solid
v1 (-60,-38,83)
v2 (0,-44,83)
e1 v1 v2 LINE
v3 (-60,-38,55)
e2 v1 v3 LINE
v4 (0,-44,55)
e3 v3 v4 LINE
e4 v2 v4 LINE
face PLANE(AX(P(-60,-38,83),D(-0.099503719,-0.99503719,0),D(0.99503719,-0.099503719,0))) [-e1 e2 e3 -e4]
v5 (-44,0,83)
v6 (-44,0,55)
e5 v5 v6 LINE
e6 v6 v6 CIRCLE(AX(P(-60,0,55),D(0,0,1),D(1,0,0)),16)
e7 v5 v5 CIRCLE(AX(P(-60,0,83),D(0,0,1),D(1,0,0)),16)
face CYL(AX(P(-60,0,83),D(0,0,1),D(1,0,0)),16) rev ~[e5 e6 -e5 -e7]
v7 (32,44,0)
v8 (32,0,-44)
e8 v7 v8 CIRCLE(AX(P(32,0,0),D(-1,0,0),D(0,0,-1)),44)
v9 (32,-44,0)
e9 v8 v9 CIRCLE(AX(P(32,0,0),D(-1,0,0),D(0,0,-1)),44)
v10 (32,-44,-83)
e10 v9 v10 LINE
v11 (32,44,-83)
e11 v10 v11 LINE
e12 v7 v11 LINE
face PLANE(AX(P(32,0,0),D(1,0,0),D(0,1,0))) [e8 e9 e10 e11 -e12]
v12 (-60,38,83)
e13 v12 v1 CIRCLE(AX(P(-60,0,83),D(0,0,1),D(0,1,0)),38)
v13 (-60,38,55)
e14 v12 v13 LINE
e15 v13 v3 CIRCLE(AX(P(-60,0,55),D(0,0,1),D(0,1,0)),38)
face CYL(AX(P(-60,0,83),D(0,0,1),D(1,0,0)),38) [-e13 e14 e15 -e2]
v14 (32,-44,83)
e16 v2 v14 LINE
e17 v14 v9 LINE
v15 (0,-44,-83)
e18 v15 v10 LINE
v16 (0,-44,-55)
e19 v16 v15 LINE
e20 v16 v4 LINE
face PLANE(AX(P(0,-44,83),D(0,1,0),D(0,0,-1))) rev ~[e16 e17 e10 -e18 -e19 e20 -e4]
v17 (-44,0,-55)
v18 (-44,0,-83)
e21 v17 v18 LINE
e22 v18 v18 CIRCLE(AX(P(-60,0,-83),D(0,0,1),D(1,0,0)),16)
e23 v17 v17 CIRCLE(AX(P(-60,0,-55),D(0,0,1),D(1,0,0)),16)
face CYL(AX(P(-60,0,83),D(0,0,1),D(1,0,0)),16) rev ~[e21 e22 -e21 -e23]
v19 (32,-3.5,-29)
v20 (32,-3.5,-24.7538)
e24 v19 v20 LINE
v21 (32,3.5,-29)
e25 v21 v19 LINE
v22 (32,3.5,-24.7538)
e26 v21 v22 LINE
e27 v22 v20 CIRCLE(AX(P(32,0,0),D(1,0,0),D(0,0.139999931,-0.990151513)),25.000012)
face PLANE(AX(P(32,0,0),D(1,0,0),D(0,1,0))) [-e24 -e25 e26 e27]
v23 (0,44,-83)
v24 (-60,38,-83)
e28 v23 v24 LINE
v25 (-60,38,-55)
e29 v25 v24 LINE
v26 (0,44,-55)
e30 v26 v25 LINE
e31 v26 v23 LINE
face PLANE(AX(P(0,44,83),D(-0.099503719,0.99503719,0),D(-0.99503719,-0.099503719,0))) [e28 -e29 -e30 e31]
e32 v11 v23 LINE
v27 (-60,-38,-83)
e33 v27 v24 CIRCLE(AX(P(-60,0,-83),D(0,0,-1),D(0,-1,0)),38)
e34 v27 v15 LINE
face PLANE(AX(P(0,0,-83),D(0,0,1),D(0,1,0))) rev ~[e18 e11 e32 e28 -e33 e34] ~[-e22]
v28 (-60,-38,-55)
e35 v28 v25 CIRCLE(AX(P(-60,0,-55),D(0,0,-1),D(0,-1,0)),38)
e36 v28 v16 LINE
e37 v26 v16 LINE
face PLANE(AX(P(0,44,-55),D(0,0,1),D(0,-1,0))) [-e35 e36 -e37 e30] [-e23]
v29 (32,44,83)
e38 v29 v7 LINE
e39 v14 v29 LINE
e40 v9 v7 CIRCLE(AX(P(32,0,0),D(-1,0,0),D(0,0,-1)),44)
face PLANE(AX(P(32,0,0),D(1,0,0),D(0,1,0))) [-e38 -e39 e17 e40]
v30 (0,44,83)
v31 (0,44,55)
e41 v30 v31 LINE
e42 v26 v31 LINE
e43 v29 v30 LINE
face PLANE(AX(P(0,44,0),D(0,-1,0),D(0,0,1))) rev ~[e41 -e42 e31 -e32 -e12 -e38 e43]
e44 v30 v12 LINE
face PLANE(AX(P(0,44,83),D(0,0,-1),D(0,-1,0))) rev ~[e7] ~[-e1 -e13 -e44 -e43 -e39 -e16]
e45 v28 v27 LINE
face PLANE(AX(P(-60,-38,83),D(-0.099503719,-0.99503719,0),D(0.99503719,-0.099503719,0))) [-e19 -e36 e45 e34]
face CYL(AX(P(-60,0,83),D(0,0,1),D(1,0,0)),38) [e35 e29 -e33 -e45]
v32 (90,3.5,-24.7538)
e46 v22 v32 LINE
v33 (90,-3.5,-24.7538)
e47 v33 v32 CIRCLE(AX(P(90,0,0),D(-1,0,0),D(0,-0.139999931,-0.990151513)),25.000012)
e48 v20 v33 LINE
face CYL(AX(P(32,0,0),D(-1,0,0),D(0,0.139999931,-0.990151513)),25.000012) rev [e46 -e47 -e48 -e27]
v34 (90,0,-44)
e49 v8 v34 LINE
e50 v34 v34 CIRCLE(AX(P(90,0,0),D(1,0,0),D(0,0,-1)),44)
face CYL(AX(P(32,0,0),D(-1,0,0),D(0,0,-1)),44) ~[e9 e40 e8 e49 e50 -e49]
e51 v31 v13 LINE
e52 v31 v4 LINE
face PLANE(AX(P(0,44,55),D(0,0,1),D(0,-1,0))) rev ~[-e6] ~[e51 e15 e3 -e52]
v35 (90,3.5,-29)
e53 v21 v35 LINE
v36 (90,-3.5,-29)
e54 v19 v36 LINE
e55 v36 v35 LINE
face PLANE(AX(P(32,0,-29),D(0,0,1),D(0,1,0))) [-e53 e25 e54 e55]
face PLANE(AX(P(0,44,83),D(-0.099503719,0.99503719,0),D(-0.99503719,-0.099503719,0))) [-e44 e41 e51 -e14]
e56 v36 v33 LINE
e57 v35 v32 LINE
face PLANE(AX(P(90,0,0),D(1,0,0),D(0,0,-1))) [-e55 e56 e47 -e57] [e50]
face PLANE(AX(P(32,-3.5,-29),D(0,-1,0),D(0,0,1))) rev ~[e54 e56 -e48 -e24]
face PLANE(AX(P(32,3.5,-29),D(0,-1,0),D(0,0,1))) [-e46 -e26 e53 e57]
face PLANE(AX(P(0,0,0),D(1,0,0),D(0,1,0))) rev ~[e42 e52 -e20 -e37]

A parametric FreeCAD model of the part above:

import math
import FreeCAD as App
import Part
import Sketcher

V = App.Vector
Q = App.Units.Quantity


def add_polygon(sketch, points):
    """Adds a closed chain of lines whose ends are joined by coincident constraints."""
    first, n = sketch.GeometryCount, len(points)
    for a, b in zip(points, points[1:] + points[:1]):
        sketch.addGeometry(Part.LineSegment(App.Vector(*a, 0), App.Vector(*b, 0)), False)
    for i in range(n):
        sketch.addConstraint(Sketcher.Constraint("Coincident", first + i, 2, first + (i + 1) % n, 1))

doc = App.newDocument("Part")
params = doc.addObject("Spreadsheet::Sheet", "Params")
for row, (alias, value) in enumerate([
    ("sketch1_width", "88 mm"),
    ("sketch1_height", "166 mm"),
    ("pad1_length", "32 mm"),
    ("sketch2_diameter", "88 mm"),
    ("sketch2_radius", "25 mm"),
    ("pad2_length", "58 mm"),
    ("sketch3_height", "28 mm"),
    ("sketch3_width", "88 mm"),
    ("pad3_length", "98 mm"),
    ("sketch4_radius", "38 mm"),
    ("sketch4_width", "98 mm"),
    ("sketch4_height", "44 mm"),
    ("sketch5_diameter", "32 mm"),
], start=1):
    params.set(f"A{row}", alias)
    params.set(f"B{row}", "=" + value)
    params.setAlias(f"B{row}", alias)

body = doc.addObject("PartDesign::Body", "Body")

# Sketch on YZ plane
sketch1 = body.newObject("Sketcher::SketchObject", "Sketch")
sketch1.AttachmentSupport = (doc.getObject("YZ_Plane"), [""])
sketch1.MapMode = "FlatFace"
add_polygon(sketch1, [(44, 83), (-44, 83), (-44, -83), (44, -83)])  # lines 0-3
sketch1.addConstraint([
    Sketcher.Constraint("Horizontal", 0),
    Sketcher.Constraint("Vertical", 1),
    Sketcher.Constraint("Horizontal", 2),
    Sketcher.Constraint("Vertical", 3),
    Sketcher.Constraint("Symmetric", 0, 2, 2, 2, -1, 1),
    Sketcher.Constraint("DistanceX", 0, 2, 0, 1, Q("88 mm")),
    Sketcher.Constraint("DistanceY", 1, 2, 1, 1, Q("166 mm")),
])
sketch1.setExpression("Constraints[9]", "Params.sketch1_width")
sketch1.setExpression("Constraints[10]", "Params.sketch1_height")
pad1 = body.newObject("PartDesign::Pad", "Pad")
pad1.Profile = sketch1
pad1.setExpression("Length", "Params.pad1_length")

# Sketch on YZ plane
sketch2 = body.newObject("Sketcher::SketchObject", "Sketch001")
sketch2.AttachmentSupport = (doc.getObject("YZ_Plane"), [""])
sketch2.MapMode = "FlatFace"
sketch2.AttachmentOffset = App.Placement(V(0, 0, 32), App.Rotation())
sketch2.addGeometry([
    Part.Circle(V(0, 0, 0), V(0, 0, 1), 44),  # 0
    Part.LineSegment(V(3.5, -29, 0), V(-3.5, -29, 0)),  # 1
    Part.LineSegment(V(-3.5, -29, 0), V(-3.5, -24.7538, 0)),  # 2
    Part.ArcOfCircle(Part.Circle(V(0, 0, 0), V(0, 0, 1), 25.000012), math.radians(-81.952158), math.radians(261.952158)),  # 3
    Part.LineSegment(V(3.5, -24.7538, 0), V(3.5, -29, 0)),  # 4
], False)
sketch2.addConstraint([
    Sketcher.Constraint("Coincident", 1, 2, 2, 1),
    Sketcher.Constraint("Coincident", 2, 2, 3, 2),
    Sketcher.Constraint("Coincident", 3, 1, 4, 1),
    Sketcher.Constraint("Coincident", 4, 2, 1, 1),
    Sketcher.Constraint("Horizontal", 1),
    Sketcher.Constraint("Vertical", 2),
    Sketcher.Constraint("Vertical", 4),
    Sketcher.Constraint("Coincident", 0, 3, -1, 1),
    Sketcher.Constraint("Coincident", 3, 3, -1, 1),
    Sketcher.Constraint("Horizontal", 2, 2, 3, 1),
    Sketcher.Constraint("Diameter", 0, Q("88 mm")),
    Sketcher.Constraint("Radius", 3, Q("25 mm")),
    Sketcher.Constraint("DistanceX", 1, 2, -1, 1, Q("3.5 mm")),
    Sketcher.Constraint("DistanceY", 1, 2, -1, 1, Q("29 mm")),
])
sketch2.setExpression("Constraints[10]", "Params.sketch2_diameter")
sketch2.setExpression("Constraints[11]", "Params.sketch2_radius")
pad2 = body.newObject("PartDesign::Pad", "Pad001")
pad2.Profile = sketch2
pad2.setExpression("Length", "Params.pad2_length")

# Sketch on YZ plane
sketch3 = body.newObject("Sketcher::SketchObject", "Sketch002")
sketch3.AttachmentSupport = (doc.getObject("YZ_Plane"), [""])
sketch3.MapMode = "FlatFace"
add_polygon(sketch3, [(44, -83), (-44, -83), (-44, -55), (44, -55)])  # lines 0-3
add_polygon(sketch3, [(44, 55), (-44, 55), (-44, 83), (44, 83)])  # lines 4-7
sketch3.addConstraint([
    Sketcher.Constraint("Horizontal", 0),
    Sketcher.Constraint("Vertical", 1),
    Sketcher.Constraint("Horizontal", 2),
    Sketcher.Constraint("Vertical", 3),
    Sketcher.Constraint("Horizontal", 4),
    Sketcher.Constraint("Vertical", 5),
    Sketcher.Constraint("Horizontal", 6),
    Sketcher.Constraint("Vertical", 7),
    Sketcher.Constraint("Symmetric", 2, 2, 4, 2, -1, 1),
    Sketcher.Constraint("Symmetric", 0, 2, 6, 2, -1, 1),
    Sketcher.Constraint("Vertical", 1, 2, 4, 2),
    Sketcher.Constraint("DistanceY", 1, 1, 1, 2, Q("28 mm")),
    Sketcher.Constraint("DistanceX", 0, 2, 0, 1, Q("88 mm")),
    Sketcher.Constraint("DistanceY", 0, 2, -1, 1, Q("83 mm")),
])
sketch3.setExpression("Constraints[19]", "Params.sketch3_height")
sketch3.setExpression("Constraints[20]", "Params.sketch3_width")
pad3 = body.newObject("PartDesign::Pad", "Pad002")
pad3.Profile = sketch3
pad3.setExpression("Length", "Params.pad3_length")
pad3.Reversed = True

# Sketch on XY plane
sketch4 = body.newObject("Sketcher::SketchObject", "Sketch003")
sketch4.AttachmentSupport = (doc.getObject("XY_Plane"), [""])
sketch4.MapMode = "FlatFace"
sketch4.AttachmentOffset = App.Placement(V(0, 0, 83), App.Rotation())
sketch4.addGeometry([
    Part.ArcOfCircle(Part.Circle(V(-60, 0, 0), V(0, 0, 1), 38), math.radians(90), math.radians(180)),  # 0
    Part.LineSegment(V(-60, 38, 0), V(0, 44, 0)),  # 1
    Part.LineSegment(V(0, 44, 0), V(-98, 44, 0)),  # 2
    Part.LineSegment(V(-98, 44, 0), V(-98, 0, 0)),  # 3
    Part.LineSegment(V(0, -44, 0), V(-60, -38, 0)),  # 4
    Part.ArcOfCircle(Part.Circle(V(-60, 0, 0), V(0, 0, 1), 38), math.radians(180), math.radians(270)),  # 5
    Part.LineSegment(V(-98, 0, 0), V(-98, -44, 0)),  # 6
    Part.LineSegment(V(-98, -44, 0), V(0, -44, 0)),  # 7
], False)
sketch4.addConstraint([
    Sketcher.Constraint("Coincident", 0, 1, 1, 1),
    Sketcher.Constraint("Coincident", 1, 2, 2, 1),
    Sketcher.Constraint("Coincident", 2, 2, 3, 1),
    Sketcher.Constraint("Tangent", 3, 2, 0, 2),
    Sketcher.Constraint("Coincident", 4, 2, 5, 2),
    Sketcher.Constraint("Tangent", 5, 1, 6, 1),
    Sketcher.Constraint("Coincident", 6, 2, 7, 1),
    Sketcher.Constraint("Coincident", 7, 2, 4, 1),
    Sketcher.Constraint("Horizontal", 2),
    Sketcher.Constraint("Vertical", 3),
    Sketcher.Constraint("Vertical", 6),
    Sketcher.Constraint("Horizontal", 7),
    Sketcher.Constraint("Coincident", 5, 3, 0, 3),
    Sketcher.Constraint("Equal", 0, 5),
    Sketcher.Constraint("Symmetric", 1, 2, 7, 2, -1, 1),
    Sketcher.Constraint("Symmetric", 0, 1, 4, 2, -1),
    Sketcher.Constraint("PointOnObject", 1, 2, -2),
    Sketcher.Constraint("Vertical", 5, 3, 0, 1),
    Sketcher.Constraint("Radius", 0, Q("38 mm")),
    Sketcher.Constraint("DistanceX", 2, 2, 2, 1, Q("98 mm")),
    Sketcher.Constraint("DistanceY", 3, 2, 3, 1, Q("44 mm")),
])
sketch4.setExpression("Constraints[18]", "Params.sketch4_radius")
sketch4.setExpression("Constraints[19]", "Params.sketch4_width")
sketch4.setExpression("Constraints[20]", "Params.sketch4_height")
pocket1 = body.newObject("PartDesign::Pocket", "Pocket")
pocket1.Profile = sketch4
pocket1.Type = "ThroughAll"

# Sketch on XY plane
sketch5 = body.newObject("Sketcher::SketchObject", "Sketch004")
sketch5.AttachmentSupport = (doc.getObject("XY_Plane"), [""])
sketch5.MapMode = "FlatFace"
sketch5.AttachmentOffset = App.Placement(V(0, 0, 83), App.Rotation())
sketch5.addGeometry(Part.Circle(V(-60, 0, 0), V(0, 0, 1), 16), False)
sketch5.addConstraint([
    Sketcher.Constraint("PointOnObject", 0, 3, -1),
    Sketcher.Constraint("Diameter", 0, Q("32 mm")),
    Sketcher.Constraint("DistanceX", 0, 3, -1, 1, Q("60 mm")),
])
sketch5.setExpression("Constraints[1]", "Params.sketch5_diameter")
pocket2 = body.newObject("PartDesign::Pocket", "Pocket001")
pocket2.Profile = sketch5
pocket2.Type = "ThroughAll"

doc.recompute()
